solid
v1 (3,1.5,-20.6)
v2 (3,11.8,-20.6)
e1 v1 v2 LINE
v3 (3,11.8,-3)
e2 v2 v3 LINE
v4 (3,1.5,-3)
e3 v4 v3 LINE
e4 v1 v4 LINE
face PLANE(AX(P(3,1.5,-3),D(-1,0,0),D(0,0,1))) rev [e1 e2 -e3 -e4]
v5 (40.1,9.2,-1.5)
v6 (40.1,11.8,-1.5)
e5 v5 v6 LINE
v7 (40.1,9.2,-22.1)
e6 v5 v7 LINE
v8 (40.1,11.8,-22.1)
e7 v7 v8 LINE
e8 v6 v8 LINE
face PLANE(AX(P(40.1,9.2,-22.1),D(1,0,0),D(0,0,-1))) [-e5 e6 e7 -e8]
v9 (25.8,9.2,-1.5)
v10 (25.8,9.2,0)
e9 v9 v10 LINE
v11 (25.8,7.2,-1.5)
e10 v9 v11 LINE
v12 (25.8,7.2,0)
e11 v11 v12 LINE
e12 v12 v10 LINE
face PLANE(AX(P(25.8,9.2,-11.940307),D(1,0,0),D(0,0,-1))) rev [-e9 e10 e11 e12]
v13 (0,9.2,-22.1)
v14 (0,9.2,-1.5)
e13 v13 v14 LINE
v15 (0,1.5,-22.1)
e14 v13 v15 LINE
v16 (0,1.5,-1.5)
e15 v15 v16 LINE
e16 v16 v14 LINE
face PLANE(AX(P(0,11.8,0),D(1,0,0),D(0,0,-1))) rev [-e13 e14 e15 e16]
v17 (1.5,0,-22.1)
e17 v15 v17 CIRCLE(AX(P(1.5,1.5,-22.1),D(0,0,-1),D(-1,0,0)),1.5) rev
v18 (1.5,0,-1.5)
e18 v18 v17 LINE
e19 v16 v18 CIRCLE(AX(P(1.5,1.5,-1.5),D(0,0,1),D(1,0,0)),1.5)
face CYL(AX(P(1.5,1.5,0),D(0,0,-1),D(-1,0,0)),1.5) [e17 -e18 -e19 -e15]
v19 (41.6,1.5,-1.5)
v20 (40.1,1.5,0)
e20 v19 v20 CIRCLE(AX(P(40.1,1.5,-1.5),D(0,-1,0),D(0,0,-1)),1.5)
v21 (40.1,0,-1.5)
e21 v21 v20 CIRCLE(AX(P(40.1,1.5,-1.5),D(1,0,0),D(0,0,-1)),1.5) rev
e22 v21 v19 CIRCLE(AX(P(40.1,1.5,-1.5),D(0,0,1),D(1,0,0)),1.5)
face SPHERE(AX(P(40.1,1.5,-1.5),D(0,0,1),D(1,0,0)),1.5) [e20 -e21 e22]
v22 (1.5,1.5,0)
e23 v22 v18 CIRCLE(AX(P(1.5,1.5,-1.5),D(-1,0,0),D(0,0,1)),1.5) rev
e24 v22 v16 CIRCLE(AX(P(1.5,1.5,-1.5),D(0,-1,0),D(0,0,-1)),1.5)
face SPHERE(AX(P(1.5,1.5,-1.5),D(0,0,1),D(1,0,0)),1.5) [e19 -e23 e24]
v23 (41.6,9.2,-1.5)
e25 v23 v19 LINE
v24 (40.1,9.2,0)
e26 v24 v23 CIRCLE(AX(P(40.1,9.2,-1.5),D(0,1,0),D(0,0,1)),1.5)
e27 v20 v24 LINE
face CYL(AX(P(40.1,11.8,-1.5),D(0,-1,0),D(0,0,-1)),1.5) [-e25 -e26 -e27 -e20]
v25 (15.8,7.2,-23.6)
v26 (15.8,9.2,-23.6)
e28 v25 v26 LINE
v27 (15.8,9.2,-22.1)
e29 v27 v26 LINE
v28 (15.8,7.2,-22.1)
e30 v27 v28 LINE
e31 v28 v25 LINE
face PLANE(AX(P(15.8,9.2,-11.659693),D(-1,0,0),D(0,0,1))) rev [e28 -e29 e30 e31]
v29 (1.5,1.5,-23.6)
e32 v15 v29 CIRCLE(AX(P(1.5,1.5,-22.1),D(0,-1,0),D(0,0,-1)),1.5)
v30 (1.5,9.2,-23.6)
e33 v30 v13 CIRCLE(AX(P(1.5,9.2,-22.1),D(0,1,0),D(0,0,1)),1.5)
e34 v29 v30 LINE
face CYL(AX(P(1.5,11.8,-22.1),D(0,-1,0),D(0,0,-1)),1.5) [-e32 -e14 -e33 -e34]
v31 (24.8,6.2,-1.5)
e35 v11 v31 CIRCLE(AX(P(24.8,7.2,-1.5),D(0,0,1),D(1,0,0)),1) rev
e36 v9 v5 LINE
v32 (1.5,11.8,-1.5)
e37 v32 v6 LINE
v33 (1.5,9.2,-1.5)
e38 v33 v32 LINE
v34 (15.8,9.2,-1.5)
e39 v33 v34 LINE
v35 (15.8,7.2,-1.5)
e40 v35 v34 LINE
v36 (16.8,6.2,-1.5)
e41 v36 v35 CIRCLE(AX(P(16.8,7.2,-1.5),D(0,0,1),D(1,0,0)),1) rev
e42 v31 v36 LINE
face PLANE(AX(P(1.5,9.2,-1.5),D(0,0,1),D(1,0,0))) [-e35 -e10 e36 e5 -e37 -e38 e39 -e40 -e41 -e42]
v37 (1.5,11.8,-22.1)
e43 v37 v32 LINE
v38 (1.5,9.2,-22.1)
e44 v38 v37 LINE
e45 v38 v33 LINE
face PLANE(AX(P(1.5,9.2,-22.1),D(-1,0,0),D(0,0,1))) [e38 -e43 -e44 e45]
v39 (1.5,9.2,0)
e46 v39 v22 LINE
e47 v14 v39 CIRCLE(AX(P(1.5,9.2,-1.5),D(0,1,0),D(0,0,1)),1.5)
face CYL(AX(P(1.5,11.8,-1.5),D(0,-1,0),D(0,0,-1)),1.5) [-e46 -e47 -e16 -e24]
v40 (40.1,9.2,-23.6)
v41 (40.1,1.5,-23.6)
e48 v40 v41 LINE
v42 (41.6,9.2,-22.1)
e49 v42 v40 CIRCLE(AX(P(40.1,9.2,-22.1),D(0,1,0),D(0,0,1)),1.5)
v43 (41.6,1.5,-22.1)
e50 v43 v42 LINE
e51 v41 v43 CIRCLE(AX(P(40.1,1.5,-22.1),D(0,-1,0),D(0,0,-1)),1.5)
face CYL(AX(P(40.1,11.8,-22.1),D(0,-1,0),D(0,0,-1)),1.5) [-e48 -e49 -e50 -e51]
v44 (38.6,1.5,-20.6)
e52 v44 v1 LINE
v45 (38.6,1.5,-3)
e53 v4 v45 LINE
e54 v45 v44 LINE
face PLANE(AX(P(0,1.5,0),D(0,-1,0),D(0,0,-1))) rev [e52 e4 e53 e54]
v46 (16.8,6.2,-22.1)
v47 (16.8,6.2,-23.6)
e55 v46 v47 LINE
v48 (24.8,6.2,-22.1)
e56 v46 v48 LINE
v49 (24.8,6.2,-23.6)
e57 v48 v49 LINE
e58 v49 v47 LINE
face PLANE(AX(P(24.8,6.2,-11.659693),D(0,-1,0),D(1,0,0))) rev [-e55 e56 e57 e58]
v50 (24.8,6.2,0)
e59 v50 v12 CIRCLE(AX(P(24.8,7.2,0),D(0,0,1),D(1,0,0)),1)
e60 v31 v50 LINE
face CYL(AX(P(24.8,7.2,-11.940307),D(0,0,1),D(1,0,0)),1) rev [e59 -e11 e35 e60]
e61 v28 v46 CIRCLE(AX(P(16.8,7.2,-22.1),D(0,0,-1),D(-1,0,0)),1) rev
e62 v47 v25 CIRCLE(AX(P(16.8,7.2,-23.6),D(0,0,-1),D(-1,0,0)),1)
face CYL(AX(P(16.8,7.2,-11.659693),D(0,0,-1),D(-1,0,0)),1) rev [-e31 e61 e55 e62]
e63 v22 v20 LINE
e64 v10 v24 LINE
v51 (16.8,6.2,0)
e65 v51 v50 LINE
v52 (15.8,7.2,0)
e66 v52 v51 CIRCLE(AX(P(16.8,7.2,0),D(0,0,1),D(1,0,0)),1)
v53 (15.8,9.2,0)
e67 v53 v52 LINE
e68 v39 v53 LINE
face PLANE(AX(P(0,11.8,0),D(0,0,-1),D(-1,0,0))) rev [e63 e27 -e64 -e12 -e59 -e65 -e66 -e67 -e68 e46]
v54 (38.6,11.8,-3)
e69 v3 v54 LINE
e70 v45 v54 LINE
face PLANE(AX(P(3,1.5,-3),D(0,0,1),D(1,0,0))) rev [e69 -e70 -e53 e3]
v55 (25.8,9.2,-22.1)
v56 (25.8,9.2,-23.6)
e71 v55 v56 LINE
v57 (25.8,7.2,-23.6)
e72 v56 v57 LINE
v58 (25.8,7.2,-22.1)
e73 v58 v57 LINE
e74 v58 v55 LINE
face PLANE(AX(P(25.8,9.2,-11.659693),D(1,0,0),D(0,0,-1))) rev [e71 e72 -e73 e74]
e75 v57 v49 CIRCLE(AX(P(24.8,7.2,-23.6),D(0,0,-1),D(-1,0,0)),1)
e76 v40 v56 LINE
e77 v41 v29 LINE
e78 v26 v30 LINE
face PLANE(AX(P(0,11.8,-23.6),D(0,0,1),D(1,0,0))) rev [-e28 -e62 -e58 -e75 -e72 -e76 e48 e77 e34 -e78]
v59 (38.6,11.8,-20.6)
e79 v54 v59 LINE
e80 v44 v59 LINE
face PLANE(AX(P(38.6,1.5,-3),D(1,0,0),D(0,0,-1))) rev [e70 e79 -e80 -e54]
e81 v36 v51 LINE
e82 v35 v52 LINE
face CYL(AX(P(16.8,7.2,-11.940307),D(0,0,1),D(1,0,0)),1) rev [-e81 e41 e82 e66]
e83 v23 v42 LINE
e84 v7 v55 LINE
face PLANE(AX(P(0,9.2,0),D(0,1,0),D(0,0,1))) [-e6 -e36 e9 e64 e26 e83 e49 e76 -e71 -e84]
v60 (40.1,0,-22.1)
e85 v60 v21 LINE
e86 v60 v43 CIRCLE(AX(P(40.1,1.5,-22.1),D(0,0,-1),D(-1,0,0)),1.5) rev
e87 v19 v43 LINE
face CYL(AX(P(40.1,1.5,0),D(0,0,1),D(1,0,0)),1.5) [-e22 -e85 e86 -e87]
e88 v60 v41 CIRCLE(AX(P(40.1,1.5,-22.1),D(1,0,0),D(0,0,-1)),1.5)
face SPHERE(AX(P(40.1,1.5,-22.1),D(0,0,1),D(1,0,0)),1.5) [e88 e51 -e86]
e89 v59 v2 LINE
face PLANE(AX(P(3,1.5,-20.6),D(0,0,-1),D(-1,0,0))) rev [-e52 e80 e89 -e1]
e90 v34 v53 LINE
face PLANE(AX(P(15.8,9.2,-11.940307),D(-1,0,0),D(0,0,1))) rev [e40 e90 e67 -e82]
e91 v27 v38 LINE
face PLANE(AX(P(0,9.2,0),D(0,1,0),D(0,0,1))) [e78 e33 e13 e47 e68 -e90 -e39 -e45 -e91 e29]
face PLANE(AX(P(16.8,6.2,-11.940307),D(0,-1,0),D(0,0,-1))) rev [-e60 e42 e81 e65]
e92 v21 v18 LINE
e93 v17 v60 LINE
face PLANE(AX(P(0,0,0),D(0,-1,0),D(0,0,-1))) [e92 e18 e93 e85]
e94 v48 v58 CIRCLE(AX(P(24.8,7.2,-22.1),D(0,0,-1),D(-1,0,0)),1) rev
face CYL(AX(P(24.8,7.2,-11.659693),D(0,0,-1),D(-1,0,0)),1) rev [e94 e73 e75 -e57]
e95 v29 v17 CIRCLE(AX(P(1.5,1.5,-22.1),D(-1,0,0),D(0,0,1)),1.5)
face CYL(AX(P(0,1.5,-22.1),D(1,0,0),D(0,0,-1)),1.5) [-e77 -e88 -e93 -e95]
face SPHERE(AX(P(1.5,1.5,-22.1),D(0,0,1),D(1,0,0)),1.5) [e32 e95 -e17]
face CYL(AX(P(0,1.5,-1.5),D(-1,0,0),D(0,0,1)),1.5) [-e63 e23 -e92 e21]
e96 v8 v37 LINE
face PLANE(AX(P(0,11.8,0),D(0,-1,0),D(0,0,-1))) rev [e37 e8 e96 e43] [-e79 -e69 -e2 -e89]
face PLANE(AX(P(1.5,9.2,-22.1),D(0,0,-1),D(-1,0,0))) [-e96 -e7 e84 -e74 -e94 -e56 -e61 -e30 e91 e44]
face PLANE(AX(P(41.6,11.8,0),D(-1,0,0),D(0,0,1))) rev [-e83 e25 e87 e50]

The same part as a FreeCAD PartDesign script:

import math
import FreeCAD as App
import Part
import Sketcher


def edges_at(feature, points):
    """Names of the edges that pass closest to the given points."""
    edges = feature.Shape.Edges
    near = lambda p: min(range(len(edges)), key=lambda i: edges[i].distToShape(Part.Vertex(*p))[0])
    return sorted({f"Edge{near(p) + 1}" for p in points})

doc = App.newDocument("Part")
params = doc.addObject("Spreadsheet::Sheet", "Params")
for row, (alias, value) in enumerate([
    ("sketch1_width", "41.6 mm"),
    ("sketch1_height", "23.6 mm"),
    ("pad1_length", "11.8 mm"),
    ("sketch2_width", "35.6 mm"),
    ("sketch2_height", "17.6 mm"),
    ("pocket1_length", "10.3 mm"),
    ("sketch3_width", "41.6 mm"),
    ("sketch3_width2", "38.6 mm"),
    ("sketch3_height", "23.6 mm"),
    ("sketch3_height2", "20.6 mm"),
    ("pocket2_length", "2.6 mm"),
    ("fillet_radius", "1.5 mm"),
    ("sketch4_radius", "1 mm"),
    ("sketch4_width", "10 mm"),
    ("sketch4_height", "2 mm"),
    ("pocket3_length", "1.5 mm"),
    ("sketch5_radius", "1 mm"),
    ("sketch5_width", "10 mm"),
    ("sketch5_height", "2 mm"),
    ("pocket4_length", "1.5 mm"),
], start=1):
    params.set(f"A{row}", alias)
    params.set(f"B{row}", "=" + value)
    params.setAlias(f"B{row}", alias)

body = doc.addObject("PartDesign::Body", "Body")

# Sketch on XZ plane
sketch1 = doc.addObject("Sketcher::SketchObject", "Sketch")
body.addObject(sketch1)
sketch1.AttachmentSupport = (doc.XZ_Plane, [""])
sketch1.MapMode = "FlatFace"
sketch1.addGeometry([
    Part.LineSegment(App.Vector(0, -24, 0), App.Vector(0, 0, 0)),
    Part.LineSegment(App.Vector(0, 0, 0), App.Vector(42, 0, 0)),
    Part.LineSegment(App.Vector(42, 0, 0), App.Vector(42, -24, 0)),
    Part.LineSegment(App.Vector(42, -24, 0), App.Vector(0, -24, 0)),
], False)
sketch1.addConstraint([
    Sketcher.Constraint("Coincident", 0, 2, 1, 1),
    Sketcher.Constraint("Coincident", 1, 2, 2, 1),
    Sketcher.Constraint("Coincident", 2, 2, 3, 1),
    Sketcher.Constraint("Coincident", 3, 2, 0, 1),
    Sketcher.Constraint("Vertical", 0),
    Sketcher.Constraint("Horizontal", 1),
    Sketcher.Constraint("Vertical", 2),
    Sketcher.Constraint("Horizontal", 3),
    Sketcher.Constraint("Coincident", 0, 2, -1, 1),
    Sketcher.Constraint("DistanceX", 1, 1, 1, 2, 41.6),
    Sketcher.Constraint("DistanceY", 0, 1, 0, 2, 23.6),
])
sketch1.setExpression("Constraints[9]", "Params.sketch1_width")
sketch1.setExpression("Constraints[10]", "Params.sketch1_height")
pad1 = doc.addObject("PartDesign::Pad", "Pad")
body.addObject(pad1)
pad1.Profile = sketch1
pad1.setExpression("Length", "Params.pad1_length")
pad1.Reversed = True

# Sketch on XZ plane
sketch2 = doc.addObject("Sketcher::SketchObject", "Sketch001")
body.addObject(sketch2)
sketch2.AttachmentSupport = (doc.XZ_Plane, [""])
sketch2.MapMode = "FlatFace"
sketch2.AttachmentOffset = App.Placement(App.Vector(0, 0, -11.8), App.Rotation())
sketch2.addGeometry([
    Part.LineSegment(App.Vector(3, -21, 0), App.Vector(3, -3, 0)),
    Part.LineSegment(App.Vector(3, -3, 0), App.Vector(39, -3, 0)),
    Part.LineSegment(App.Vector(39, -3, 0), App.Vector(39, -21, 0)),
    Part.LineSegment(App.Vector(39, -21, 0), App.Vector(3, -21, 0)),
], False)
sketch2.addConstraint([
    Sketcher.Constraint("Coincident", 0, 2, 1, 1),
    Sketcher.Constraint("Coincident", 1, 2, 2, 1),
    Sketcher.Constraint("Coincident", 2, 2, 3, 1),
    Sketcher.Constraint("Coincident", 3, 2, 0, 1),
    Sketcher.Constraint("Vertical", 0),
    Sketcher.Constraint("Horizontal", 1),
    Sketcher.Constraint("Vertical", 2),
    Sketcher.Constraint("Horizontal", 3),
    Sketcher.Constraint("DistanceX", 1, 1, 1, 2, 35.6),
    Sketcher.Constraint("DistanceY", 0, 1, 0, 2, 17.6),
    Sketcher.Constraint("DistanceX", -1, 1, 0, 2, 3.0),
    Sketcher.Constraint("DistanceY", 0, 2, -1, 1, 3.0),
])
sketch2.setExpression("Constraints[8]", "Params.sketch2_width")
sketch2.setExpression("Constraints[9]", "Params.sketch2_height")
pocket1 = doc.addObject("PartDesign::Pocket", "Pocket")
body.addObject(pocket1)
pocket1.Profile = sketch2
pocket1.setExpression("Length", "Params.pocket1_length")
pocket1.Reversed = True

# Sketch on XZ plane
sketch3 = doc.addObject("Sketcher::SketchObject", "Sketch002")
body.addObject(sketch3)
sketch3.AttachmentSupport = (doc.XZ_Plane, [""])
sketch3.MapMode = "FlatFace"
sketch3.AttachmentOffset = App.Placement(App.Vector(0, 0, -11.8), App.Rotation())
sketch3.addGeometry([
    Part.LineSegment(App.Vector(0, -24, 0), App.Vector(0, 0, 0)),  # 0
    Part.LineSegment(App.Vector(0, 0, 0), App.Vector(42, 0, 0)),  # 1
    Part.LineSegment(App.Vector(42, 0, 0), App.Vector(42, -24, 0)),  # 2
    Part.LineSegment(App.Vector(42, -24, 0), App.Vector(0, -24, 0)),  # 3
    Part.LineSegment(App.Vector(40, -2, 0), App.Vector(2, -2, 0)),  # 4
    Part.LineSegment(App.Vector(2, -2, 0), App.Vector(2, -22, 0)),  # 5
    Part.LineSegment(App.Vector(2, -22, 0), App.Vector(40, -22, 0)),  # 6
    Part.LineSegment(App.Vector(40, -22, 0), App.Vector(40, -2, 0)),  # 7
], False)
sketch3.addConstraint([
    Sketcher.Constraint("Coincident", 0, 2, 1, 1),
    Sketcher.Constraint("Coincident", 1, 2, 2, 1),
    Sketcher.Constraint("Coincident", 2, 2, 3, 1),
    Sketcher.Constraint("Coincident", 3, 2, 0, 1),
    Sketcher.Constraint("Coincident", 4, 2, 5, 1),
    Sketcher.Constraint("Coincident", 5, 2, 6, 1),
    Sketcher.Constraint("Coincident", 6, 2, 7, 1),
    Sketcher.Constraint("Coincident", 7, 2, 4, 1),
    Sketcher.Constraint("Vertical", 0),
    Sketcher.Constraint("Horizontal", 1),
    Sketcher.Constraint("Vertical", 2),
    Sketcher.Constraint("Horizontal", 3),
    Sketcher.Constraint("Horizontal", 4),
    Sketcher.Constraint("Vertical", 5),
    Sketcher.Constraint("Horizontal", 6),
    Sketcher.Constraint("Vertical", 7),
    Sketcher.Constraint("Coincident", 0, 2, -1, 1),
    Sketcher.Constraint("DistanceX", 1, 1, 1, 2, 41.6),
    Sketcher.Constraint("DistanceX", 4, 2, 4, 1, 38.6),
    Sketcher.Constraint("DistanceY", 0, 1, 0, 2, 23.6),
    Sketcher.Constraint("DistanceY", 5, 2, 5, 1, 20.6),
    Sketcher.Constraint("DistanceX", -1, 1, 4, 2, 1.5),
    Sketcher.Constraint("DistanceY", 4, 2, -1, 1, 1.5),
])
sketch3.setExpression("Constraints[17]", "Params.sketch3_width")
sketch3.setExpression("Constraints[18]", "Params.sketch3_width2")
sketch3.setExpression("Constraints[19]", "Params.sketch3_height")
sketch3.setExpression("Constraints[20]", "Params.sketch3_height2")
pocket2 = doc.addObject("PartDesign::Pocket", "Pocket001")
body.addObject(pocket2)
pocket2.Profile = sketch3
pocket2.setExpression("Length", "Params.pocket2_length")
pocket2.Reversed = True
doc.recompute()

fillet = doc.addObject("PartDesign::Fillet", "Fillet")
body.addObject(fillet)
fillet.Base = (pocket2, edges_at(pocket2, [
    (0, 4.6, -23.6),
    (41.6, 4.6, -23.6),
    (41.6, 4.6, 0),
    (0, 4.6, 0),
    (20.8, 0, -23.6),
    (41.6, 0, -11.8),
    (20.8, 0, 0),
    (0, 0, -11.8),
]))
fillet.setExpression("Radius", "Params.fillet_radius")

# Sketch on XY plane
sketch4 = doc.addObject("Sketcher::SketchObject", "Sketch003")
body.addObject(sketch4)
sketch4.AttachmentSupport = (doc.XY_Plane, [""])
sketch4.MapMode = "FlatFace"
sketch4.AttachmentOffset = App.Placement(App.Vector(0, 0, -23.6), App.Rotation())
sketch4.addGeometry([
    Part.LineSegment(App.Vector(15.8, 9.2, 0), App.Vector(25.8, 9.2, 0)),  # 0
    Part.LineSegment(App.Vector(25.8, 9.2, 0), App.Vector(25.8, 7.2, 0)),  # 1
    Part.ArcOfCircle(Part.Circle(App.Vector(24.8, 7.2, 0), App.Vector(0, 0, 1), 1), math.radians(-90), math.radians(0)),  # 2
    Part.LineSegment(App.Vector(24.8, 6.2, 0), App.Vector(16.8, 6.2, 0)),  # 3
    Part.ArcOfCircle(Part.Circle(App.Vector(16.8, 7.2, 0), App.Vector(0, 0, 1), 1), math.radians(-180), math.radians(-90)),  # 4
    Part.LineSegment(App.Vector(15.8, 7.2, 0), App.Vector(15.8, 9.2, 0)),  # 5
], False)
sketch4.addConstraint([
    Sketcher.Constraint("Coincident", 0, 2, 1, 1),
    Sketcher.Constraint("Tangent", 1, 2, 2, 2),
    Sketcher.Constraint("Tangent", 2, 1, 3, 1),
    Sketcher.Constraint("Tangent", 3, 2, 4, 2),
    Sketcher.Constraint("Tangent", 4, 1, 5, 1),
    Sketcher.Constraint("Coincident", 5, 2, 0, 1),
    Sketcher.Constraint("Horizontal", 0),
    Sketcher.Constraint("Vertical", 1),
    Sketcher.Constraint("Horizontal", 3),
    Sketcher.Constraint("Vertical", 5),
    Sketcher.Constraint("Equal", 2, 4),
    Sketcher.Constraint("Radius", 2, 1.0),
    Sketcher.Constraint("DistanceX", 0, 1, 0, 2, 10.0),
    Sketcher.Constraint("DistanceY", 1, 2, 1, 1, 2.0),
    Sketcher.Constraint("DistanceX", -1, 1, 2, 3, 24.8),
    Sketcher.Constraint("DistanceY", -1, 1, 2, 3, 7.2),
])
sketch4.setExpression("Constraints[11]", "Params.sketch4_radius")
sketch4.setExpression("Constraints[12]", "Params.sketch4_width")
sketch4.setExpression("Constraints[13]", "Params.sketch4_height")
pocket3 = doc.addObject("PartDesign::Pocket", "Pocket002")
body.addObject(pocket3)
pocket3.Profile = sketch4
pocket3.setExpression("Length", "Params.pocket3_length")
pocket3.Reversed = True

# Sketch on XY plane
sketch5 = doc.addObject("Sketcher::SketchObject", "Sketch004")
body.addObject(sketch5)
sketch5.AttachmentSupport = (doc.XY_Plane, [""])
sketch5.MapMode = "FlatFace"
sketch5.AttachmentOffset = App.Placement(App.Vector(0, 0, -1.5), App.Rotation())
sketch5.addGeometry([
    Part.LineSegment(App.Vector(25.8, 9.2, 0), App.Vector(15.8, 9.2, 0)),  # 0
    Part.LineSegment(App.Vector(15.8, 9.2, 0), App.Vector(15.8, 7.2, 0)),  # 1
    Part.ArcOfCircle(Part.Circle(App.Vector(16.8, 7.2, 0), App.Vector(0, 0, 1), 1), math.radians(-180), math.radians(-90)),  # 2
    Part.LineSegment(App.Vector(16.8, 6.2, 0), App.Vector(24.8, 6.2, 0)),  # 3
    Part.ArcOfCircle(Part.Circle(App.Vector(24.8, 7.2, 0), App.Vector(0, 0, 1), 1), math.radians(-90), math.radians(0)),  # 4
    Part.LineSegment(App.Vector(25.8, 7.2, 0), App.Vector(25.8, 9.2, 0)),  # 5
], False)
sketch5.addConstraint([
    Sketcher.Constraint("Coincident", 0, 2, 1, 1),
    Sketcher.Constraint("Tangent", 1, 2, 2, 1),
    Sketcher.Constraint("Tangent", 2, 2, 3, 1),
    Sketcher.Constraint("Tangent", 3, 2, 4, 1),
    Sketcher.Constraint("Tangent", 4, 2, 5, 1),
    Sketcher.Constraint("Coincident", 5, 2, 0, 1),
    Sketcher.Constraint("Horizontal", 0),
    Sketcher.Constraint("Vertical", 1),
    Sketcher.Constraint("Horizontal", 3),
    Sketcher.Constraint("Vertical", 5),
    Sketcher.Constraint("Equal", 2, 4),
    Sketcher.Constraint("Radius", 2, 1.0),
    Sketcher.Constraint("DistanceX", 0, 2, 0, 1, 10.0),
    Sketcher.Constraint("DistanceY", 1, 2, 1, 1, 2.0),
    Sketcher.Constraint("DistanceX", -1, 1, 2, 3, 16.8),
    Sketcher.Constraint("DistanceY", -1, 1, 2, 3, 7.2),
])
sketch5.setExpression("Constraints[11]", "Params.sketch5_radius")
sketch5.setExpression("Constraints[12]", "Params.sketch5_width")
sketch5.setExpression("Constraints[13]", "Params.sketch5_height")
pocket4 = doc.addObject("PartDesign::Pocket", "Pocket003")
body.addObject(pocket4)
pocket4.Profile = sketch5
pocket4.setExpression("Length", "Params.pocket4_length")
pocket4.Reversed = True

doc.recompute()
